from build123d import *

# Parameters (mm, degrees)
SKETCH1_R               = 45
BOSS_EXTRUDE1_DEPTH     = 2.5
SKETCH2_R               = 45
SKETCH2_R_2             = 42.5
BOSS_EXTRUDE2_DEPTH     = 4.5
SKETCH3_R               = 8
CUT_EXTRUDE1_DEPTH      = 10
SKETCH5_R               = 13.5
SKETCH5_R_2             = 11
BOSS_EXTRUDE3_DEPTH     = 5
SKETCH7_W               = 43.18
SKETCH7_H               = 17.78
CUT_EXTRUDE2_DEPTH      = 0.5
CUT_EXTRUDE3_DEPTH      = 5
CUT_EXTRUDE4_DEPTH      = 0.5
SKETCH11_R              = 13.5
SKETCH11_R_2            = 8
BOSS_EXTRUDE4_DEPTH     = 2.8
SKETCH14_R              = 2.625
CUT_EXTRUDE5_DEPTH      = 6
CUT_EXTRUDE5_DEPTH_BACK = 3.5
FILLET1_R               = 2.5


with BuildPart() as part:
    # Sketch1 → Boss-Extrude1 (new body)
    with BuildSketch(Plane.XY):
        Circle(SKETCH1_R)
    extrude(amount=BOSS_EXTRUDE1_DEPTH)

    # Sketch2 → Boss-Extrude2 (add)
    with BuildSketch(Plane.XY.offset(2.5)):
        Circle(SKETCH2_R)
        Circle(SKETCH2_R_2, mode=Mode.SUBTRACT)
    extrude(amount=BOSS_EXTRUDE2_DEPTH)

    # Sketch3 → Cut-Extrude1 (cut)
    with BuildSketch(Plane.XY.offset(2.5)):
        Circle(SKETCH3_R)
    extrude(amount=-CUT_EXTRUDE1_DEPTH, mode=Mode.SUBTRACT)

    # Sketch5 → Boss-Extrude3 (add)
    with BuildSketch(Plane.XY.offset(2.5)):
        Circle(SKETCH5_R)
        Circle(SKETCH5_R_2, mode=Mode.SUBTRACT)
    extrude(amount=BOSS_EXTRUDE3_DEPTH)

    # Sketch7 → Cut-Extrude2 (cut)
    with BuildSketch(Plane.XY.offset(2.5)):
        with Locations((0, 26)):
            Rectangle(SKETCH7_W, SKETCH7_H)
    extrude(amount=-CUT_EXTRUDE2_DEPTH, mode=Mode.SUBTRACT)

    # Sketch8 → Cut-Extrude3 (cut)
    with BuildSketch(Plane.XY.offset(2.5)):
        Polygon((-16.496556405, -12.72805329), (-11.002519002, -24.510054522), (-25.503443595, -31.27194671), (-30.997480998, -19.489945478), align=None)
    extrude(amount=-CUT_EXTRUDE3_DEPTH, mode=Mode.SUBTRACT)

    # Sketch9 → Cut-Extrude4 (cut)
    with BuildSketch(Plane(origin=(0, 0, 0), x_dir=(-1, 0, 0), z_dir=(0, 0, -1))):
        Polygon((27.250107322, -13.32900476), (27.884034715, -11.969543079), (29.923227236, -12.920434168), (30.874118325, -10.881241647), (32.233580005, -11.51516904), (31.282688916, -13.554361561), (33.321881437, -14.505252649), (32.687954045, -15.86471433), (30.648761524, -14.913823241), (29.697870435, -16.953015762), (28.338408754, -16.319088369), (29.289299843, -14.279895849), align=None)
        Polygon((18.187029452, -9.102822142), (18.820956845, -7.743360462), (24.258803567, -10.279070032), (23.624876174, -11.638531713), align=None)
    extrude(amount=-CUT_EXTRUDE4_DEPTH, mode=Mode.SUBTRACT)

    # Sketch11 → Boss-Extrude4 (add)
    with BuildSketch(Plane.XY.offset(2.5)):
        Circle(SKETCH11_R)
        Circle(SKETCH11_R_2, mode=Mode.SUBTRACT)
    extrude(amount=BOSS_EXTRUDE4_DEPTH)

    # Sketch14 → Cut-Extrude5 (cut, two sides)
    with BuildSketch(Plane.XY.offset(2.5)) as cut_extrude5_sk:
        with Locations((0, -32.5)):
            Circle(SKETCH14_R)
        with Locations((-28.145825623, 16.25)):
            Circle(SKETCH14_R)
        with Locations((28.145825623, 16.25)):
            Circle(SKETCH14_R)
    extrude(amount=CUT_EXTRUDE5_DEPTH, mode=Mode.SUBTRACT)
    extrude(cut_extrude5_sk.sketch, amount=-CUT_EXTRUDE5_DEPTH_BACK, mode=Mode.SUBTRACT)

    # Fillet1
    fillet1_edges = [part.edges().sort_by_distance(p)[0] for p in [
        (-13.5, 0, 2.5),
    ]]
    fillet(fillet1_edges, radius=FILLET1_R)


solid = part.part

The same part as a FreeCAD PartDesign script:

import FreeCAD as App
import Part
import Sketcher
from FreeCAD import Vector
Q = App.Units.Quantity


def edges_at(feature, points):
    """Names of the edges that pass closest to the given points."""
    edges = feature.Shape.Edges
    near = lambda p: min(range(len(edges)), key=lambda i: edges[i].distToShape(Part.Vertex(*p))[0])
    return sorted({f"Edge{near(p) + 1}" for p in points})

doc = App.newDocument("Part")
body = doc.addObject("PartDesign::Body", "Body")

sketch1 = body.newObject("Sketcher::SketchObject", "Sketch")
sketch1.AttachmentSupport = (doc.getObject("XY_Plane"), [""])
sketch1.MapMode = "FlatFace"
sketch1.addGeometry(Part.Circle(Vector(0, 0, 0), Vector(0, 0, 1), 45), False)
sketch1.addConstraint(Sketcher.Constraint("Coincident", 0, 3, -1, 1))
sketch1.addConstraint(Sketcher.Constraint("Diameter", 0, 90.0))
pad1 = body.newObject("PartDesign::Pad", "Pad")
pad1.Profile = sketch1
pad1.Length = 2.5

sketch2 = body.newObject("Sketcher::SketchObject", "Sketch001")
sketch2.AttachmentSupport = (doc.getObject("XY_Plane"), [""])
sketch2.MapMode = "FlatFace"
sketch2.AttachmentOffset = App.Placement(Vector(0, 0, 2.5), App.Rotation())
sketch2.addGeometry(Part.Circle(Vector(0, 0, 0), Vector(0, 0, 1), 45), False)
sketch2.addGeometry(Part.Circle(Vector(0, 0, 0), Vector(0, 0, 1), 42), False)
sketch2.addConstraint(Sketcher.Constraint("Coincident", 0, 3, -1, 1))
sketch2.addConstraint(Sketcher.Constraint("Coincident", 1, 3, -1, 1))
sketch2.addConstraint(Sketcher.Constraint("Diameter", 0, 90.0))
sketch2.addConstraint(Sketcher.Constraint("Diameter", 1, 85.0))
pad2 = body.newObject("PartDesign::Pad", "Pad001")
pad2.Profile = sketch2
pad2.Length = 4.5

sketch3 = body.newObject("Sketcher::SketchObject", "Sketch002")
sketch3.AttachmentSupport = (doc.getObject("XY_Plane"), [""])
sketch3.MapMode = "FlatFace"
sketch3.AttachmentOffset = App.Placement(Vector(0, 0, 2.5), App.Rotation())
sketch3.addGeometry(Part.Circle(Vector(0, 0, 0), Vector(0, 0, 1), 8), False)
sketch3.addConstraint(Sketcher.Constraint("Coincident", 0, 3, -1, 1))
sketch3.addConstraint(Sketcher.Constraint("Diameter", 0, 16.0))
pocket1 = body.newObject("PartDesign::Pocket", "Pocket")
pocket1.Profile = sketch3
pocket1.Length = 10

sketch4 = body.newObject("Sketcher::SketchObject", "Sketch003")
sketch4.AttachmentSupport = (doc.getObject("XY_Plane"), [""])
sketch4.MapMode = "FlatFace"
sketch4.AttachmentOffset = App.Placement(Vector(0, 0, 2.5), App.Rotation())
sketch4.addGeometry(Part.Circle(Vector(0, 0, 0), Vector(0, 0, 1), 14), False)
sketch4.addGeometry(Part.Circle(Vector(0, 0, 0), Vector(0, 0, 1), 11), False)
sketch4.addConstraint(Sketcher.Constraint("Coincident", 0, 3, -1, 1))
sketch4.addConstraint(Sketcher.Constraint("Coincident", 1, 3, -1, 1))
sketch4.addConstraint(Sketcher.Constraint("Diameter", 0, 27.0))
sketch4.addConstraint(Sketcher.Constraint("Diameter", 1, 22.0))
pad3 = body.newObject("PartDesign::Pad", "Pad002")
pad3.Profile = sketch4
pad3.Length = 5

sketch5 = body.newObject("Sketcher::SketchObject", "Sketch004")
sketch5.AttachmentSupport = (doc.getObject("XY_Plane"), [""])
sketch5.MapMode = "FlatFace"
sketch5.AttachmentOffset = App.Placement(Vector(0, 0, 2.5), App.Rotation())
sketch5.addGeometry(Part.LineSegment(Vector(-22, 35, 0), Vector(-22, 17, 0)), False)
sketch5.addGeometry(Part.LineSegment(Vector(-22, 17, 0), Vector(22, 17, 0)), False)
sketch5.addGeometry(Part.LineSegment(Vector(22, 17, 0), Vector(22, 35, 0)), False)
sketch5.addGeometry(Part.LineSegment(Vector(22, 35, 0), Vector(-22, 35, 0)), False)
sketch5.addConstraint(Sketcher.Constraint("Coincident", 0, 2, 1, 1))
sketch5.addConstraint(Sketcher.Constraint("Coincident", 1, 2, 2, 1))
sketch5.addConstraint(Sketcher.Constraint("Coincident", 2, 2, 3, 1))
sketch5.addConstraint(Sketcher.Constraint("Coincident", 3, 2, 0, 1))
sketch5.addConstraint(Sketcher.Constraint("Vertical", 0))
sketch5.addConstraint(Sketcher.Constraint("Horizontal", 1))
sketch5.addConstraint(Sketcher.Constraint("Vertical", 2))
sketch5.addConstraint(Sketcher.Constraint("Horizontal", 3))
sketch5.addConstraint(Sketcher.Constraint("DistanceX", 1, 1, 1, 2, 43.18))
sketch5.addConstraint(Sketcher.Constraint("DistanceY", 0, 2, 0, 1, 17.78))
sketch5.addConstraint(Sketcher.Constraint("DistanceX", 0, 2, -1, 1, 21.59))
sketch5.addConstraint(Sketcher.Constraint("DistanceY", -1, 1, 0, 2, 17.11))
pocket2 = body.newObject("PartDesign::Pocket", "Pocket001")
pocket2.Profile = sketch5
pocket2.Length = 0.5

sketch6 = body.newObject("Sketcher::SketchObject", "Sketch005")
sketch6.AttachmentSupport = (doc.getObject("XY_Plane"), [""])
sketch6.MapMode = "FlatFace"
sketch6.AttachmentOffset = App.Placement(Vector(0, 0, 2.5), App.Rotation())
sketch6.addGeometry(Part.LineSegment(Vector(-11, -25, 0), Vector(-16, -13, 0)), False)
sketch6.addGeometry(Part.LineSegment(Vector(-16, -13, 0), Vector(-31, -19, 0)), False)
sketch6.addGeometry(Part.LineSegment(Vector(-31, -19, 0), Vector(-26, -31, 0)), False)
sketch6.addGeometry(Part.LineSegment(Vector(-26, -31, 0), Vector(-11, -25, 0)), False)
sketch6.addConstraint(Sketcher.Constraint("Coincident", 0, 2, 1, 1))
sketch6.addConstraint(Sketcher.Constraint("Coincident", 1, 2, 2, 1))
sketch6.addConstraint(Sketcher.Constraint("Coincident", 2, 2, 3, 1))
sketch6.addConstraint(Sketcher.Constraint("Coincident", 3, 2, 0, 1))
sketch6.addConstraint(Sketcher.Constraint("Perpendicular", 0, 1))
sketch6.addConstraint(Sketcher.Constraint("Perpendicular", 1, 2))
sketch6.addConstraint(Sketcher.Constraint("Perpendicular", 2, 3))
sketch6.addConstraint(Sketcher.Constraint("Angle", 0, Q("115 deg")))
sketch6.addConstraint(Sketcher.Constraint("Distance", 0, 13.0))
sketch6.addConstraint(Sketcher.Constraint("Distance", 1, 16.0))
sketch6.addConstraint(Sketcher.Constraint("DistanceX", 1, 2, -1, 1, 30.997481))
sketch6.addConstraint(Sketcher.Constraint("DistanceY", 0, 2, -1, 1, 12.728053))
pocket3 = body.newObject("PartDesign::Pocket", "Pocket002")
pocket3.Profile = sketch6
pocket3.Length = 5

sketch7 = body.newObject("Sketcher::SketchObject", "Sketch006")
sketch7.AttachmentSupport = (doc.getObject("XY_Plane"), [""])
sketch7.MapMode = "FlatFace"
sketch7.addGeometry(Part.LineSegment(Vector(-27.9, -12, 0), Vector(-27.3, -13.3, 0)), False)
sketch7.addGeometry(Part.LineSegment(Vector(-27.3, -13.3, 0), Vector(-29.3, -14.3, 0)), False)
sketch7.addGeometry(Part.LineSegment(Vector(-29.3, -14.3, 0), Vector(-28.3, -16.3, 0)), False)
sketch7.addGeometry(Part.LineSegment(Vector(-28.3, -16.3, 0), Vector(-29.7, -17, 0)), False)
sketch7.addGeometry(Part.LineSegment(Vector(-29.7, -17, 0), Vector(-30.6, -14.9, 0)), False)
sketch7.addGeometry(Part.LineSegment(Vector(-30.6, -14.9, 0), Vector(-32.7, -15.9, 0)), False)
sketch7.addGeometry(Part.LineSegment(Vector(-32.7, -15.9, 0), Vector(-33.3, -14.5, 0)), False)
sketch7.addGeometry(Part.LineSegment(Vector(-33.3, -14.5, 0), Vector(-31.3, -13.6, 0)), False)
sketch7.addGeometry(Part.LineSegment(Vector(-31.3, -13.6, 0), Vector(-32.2, -11.5, 0)), False)
sketch7.addGeometry(Part.LineSegment(Vector(-32.2, -11.5, 0), Vector(-30.9, -10.9, 0)), False)
sketch7.addGeometry(Part.LineSegment(Vector(-30.9, -10.9, 0), Vector(-29.9, -12.9, 0)), False)
sketch7.addGeometry(Part.LineSegment(Vector(-29.9, -12.9, 0), Vector(-27.9, -12, 0)), False)
sketch7.addGeometry(Part.LineSegment(Vector(-18.8, -7.7, 0), Vector(-18.2, -9.1, 0)), False)
sketch7.addGeometry(Part.LineSegment(Vector(-18.2, -9.1, 0), Vector(-23.6, -11.6, 0)), False)
sketch7.addGeometry(Part.LineSegment(Vector(-23.6, -11.6, 0), Vector(-24.3, -10.3, 0)), False)
sketch7.addGeometry(Part.LineSegment(Vector(-24.3, -10.3, 0), Vector(-18.8, -7.7, 0)), False)
sketch7.addConstraint(Sketcher.Constraint("Coincident", 0, 2, 1, 1))
sketch7.addConstraint(Sketcher.Constraint("Coincident", 1, 2, 2, 1))
sketch7.addConstraint(Sketcher.Constraint("Coincident", 2, 2, 3, 1))
sketch7.addConstraint(Sketcher.Constraint("Coincident", 3, 2, 4, 1))
sketch7.addConstraint(Sketcher.Constraint("Coincident", 4, 2, 5, 1))
sketch7.addConstraint(Sketcher.Constraint("Coincident", 5, 2, 6, 1))
sketch7.addConstraint(Sketcher.Constraint("Coincident", 6, 2, 7, 1))
sketch7.addConstraint(Sketcher.Constraint("Coincident", 7, 2, 8, 1))
sketch7.addConstraint(Sketcher.Constraint("Coincident", 8, 2, 9, 1))
sketch7.addConstraint(Sketcher.Constraint("Coincident", 9, 2, 10, 1))
sketch7.addConstraint(Sketcher.Constraint("Coincident", 10, 2, 11, 1))
sketch7.addConstraint(Sketcher.Constraint("Coincident", 11, 2, 0, 1))
sketch7.addConstraint(Sketcher.Constraint("Coincident", 12, 2, 13, 1))
sketch7.addConstraint(Sketcher.Constraint("Coincident", 13, 2, 14, 1))
sketch7.addConstraint(Sketcher.Constraint("Coincident", 14, 2, 15, 1))
sketch7.addConstraint(Sketcher.Constraint("Coincident", 15, 2, 12, 1))
sketch7.addConstraint(Sketcher.Constraint("Perpendicular", 0, 1))
sketch7.addConstraint(Sketcher.Constraint("Perpendicular", 1, 2))
sketch7.addConstraint(Sketcher.Constraint("Perpendicular", 2, 3))
sketch7.addConstraint(Sketcher.Constraint("Perpendicular", 3, 4))
sketch7.addConstraint(Sketcher.Constraint("Perpendicular", 4, 5))
sketch7.addConstraint(Sketcher.Constraint("Perpendicular", 5, 6))
sketch7.addConstraint(Sketcher.Constraint("Perpendicular", 6, 7))
sketch7.addConstraint(Sketcher.Constraint("Perpendicular", 7, 8))
sketch7.addConstraint(Sketcher.Constraint("Perpendicular", 8, 9))
sketch7.addConstraint(Sketcher.Constraint("Perpendicular", 9, 10))
sketch7.addConstraint(Sketcher.Constraint("Perpendicular", 10, 11))
sketch7.addConstraint(Sketcher.Constraint("Perpendicular", 11, 12))
sketch7.addConstraint(Sketcher.Constraint("Perpendicular", 12, 13))
sketch7.addConstraint(Sketcher.Constraint("Perpendicular", 13, 14))
sketch7.addConstraint(Sketcher.Constraint("Perpendicular", 14, 15))
sketch7.addConstraint(Sketcher.Constraint("Equal", 1, 2))
sketch7.addConstraint(Sketcher.Constraint("Equal", 0, 3))
sketch7.addConstraint(Sketcher.Constraint("Equal", 2, 4))
sketch7.addConstraint(Sketcher.Constraint("Equal", 4, 5))
sketch7.addConstraint(Sketcher.Constraint("Equal", 3, 6))
sketch7.addConstraint(Sketcher.Constraint("Equal", 5, 7))
sketch7.addConstraint(Sketcher.Constraint("Equal", 7, 8))
sketch7.addConstraint(Sketcher.Constraint("Equal", 6, 9))
sketch7.addConstraint(Sketcher.Constraint("Equal", 9, 12))
sketch7.addConstraint(Sketcher.Constraint("Angle", 0, Q("-65 deg")))
sketch7.addConstraint(Sketcher.Constraint("Distance", 13, 6.0))
sketch7.addConstraint(Sketcher.Constraint("Distance", 0, 1.5))
sketch7.addConstraint(Sketcher.Constraint("Distance", 1, 2.25))
sketch7.addConstraint(Sketcher.Constraint("DistanceX", 1, 2, -1, 1, 29.2893))
sketch7.addConstraint(Sketcher.Constraint("DistanceY", 2, 2, -1, 1, 16.319088))
sketch7.addConstraint(Sketcher.Constraint("DistanceX", 12, 2, -1, 1, 18.187029))
sketch7.addConstraint(Sketcher.Constraint("DistanceY", 13, 2, -1, 1, 11.638532))
pocket4 = body.newObject("PartDesign::Pocket", "Pocket003")
pocket4.Profile = sketch7
pocket4.Length = 0.5
pocket4.Reversed = True

sketch8 = body.newObject("Sketcher::SketchObject", "Sketch007")
sketch8.AttachmentSupport = (doc.getObject("XY_Plane"), [""])
sketch8.MapMode = "FlatFace"
sketch8.AttachmentOffset = App.Placement(Vector(0, 0, 2.5), App.Rotation())
sketch8.addGeometry(Part.Circle(Vector(0, 0, 0), Vector(0, 0, 1), 14), False)
sketch8.addGeometry(Part.Circle(Vector(0, 0, 0), Vector(0, 0, 1), 8), False)
sketch8.addConstraint(Sketcher.Constraint("Coincident", 0, 3, -1, 1))
sketch8.addConstraint(Sketcher.Constraint("Coincident", 1, 3, -1, 1))
sketch8.addConstraint(Sketcher.Constraint("Diameter", 0, 27.0))
sketch8.addConstraint(Sketcher.Constraint("Diameter", 1, 16.0))
pad4 = body.newObject("PartDesign::Pad", "Pad003")
pad4.Profile = sketch8
pad4.Length = 2.8

sketch9 = body.newObject("Sketcher::SketchObject", "Sketch008")
sketch9.AttachmentSupport = (doc.getObject("XY_Plane"), [""])
sketch9.MapMode = "FlatFace"
sketch9.AttachmentOffset = App.Placement(Vector(0, 0, 2.5), App.Rotation())
sketch9.addGeometry(Part.Circle(Vector(0, -32.5, 0), Vector(0, 0, 1), 2.6), False)
sketch9.addGeometry(Part.Circle(Vector(-28.1, 16.2, 0), Vector(0, 0, 1), 2.6), False)
sketch9.addGeometry(Part.Circle(Vector(28.1, 16.2, 0), Vector(0, 0, 1), 2.6), False)
sketch9.addConstraint(Sketcher.Constraint("Equal", 0, 1))
sketch9.addConstraint(Sketcher.Constraint("Equal", 1, 2))
sketch9.addConstraint(Sketcher.Constraint("Symmetric", 1, 3, 2, 3, -2))
sketch9.addConstraint(Sketcher.Constraint("PointOnObject", 0, 3, -2))
sketch9.addConstraint(Sketcher.Constraint("Diameter", 0, 5.25))
sketch9.addConstraint(Sketcher.Constraint("DistanceY", 0, 3, -1, 1, 32.5))
sketch9.addConstraint(Sketcher.Constraint("DistanceY", -1, 1, 1, 3, 16.25))
sketch9.addConstraint(Sketcher.Constraint("DistanceX", 1, 3, 2, 3, 56.291651))
pocket5 = body.newObject("PartDesign::Pocket", "Pocket004")
pocket5.Profile = sketch9
pocket5.Type = "ThroughAll"
pocket5.Midplane = True
doc.recompute()

fillet = body.newObject("PartDesign::Fillet", "Fillet")
fillet.Base = (pocket5, edges_at(pocket5, [(-13.5, 0, 2.5)]))
fillet.Radius = 2.5

doc.recompute()
